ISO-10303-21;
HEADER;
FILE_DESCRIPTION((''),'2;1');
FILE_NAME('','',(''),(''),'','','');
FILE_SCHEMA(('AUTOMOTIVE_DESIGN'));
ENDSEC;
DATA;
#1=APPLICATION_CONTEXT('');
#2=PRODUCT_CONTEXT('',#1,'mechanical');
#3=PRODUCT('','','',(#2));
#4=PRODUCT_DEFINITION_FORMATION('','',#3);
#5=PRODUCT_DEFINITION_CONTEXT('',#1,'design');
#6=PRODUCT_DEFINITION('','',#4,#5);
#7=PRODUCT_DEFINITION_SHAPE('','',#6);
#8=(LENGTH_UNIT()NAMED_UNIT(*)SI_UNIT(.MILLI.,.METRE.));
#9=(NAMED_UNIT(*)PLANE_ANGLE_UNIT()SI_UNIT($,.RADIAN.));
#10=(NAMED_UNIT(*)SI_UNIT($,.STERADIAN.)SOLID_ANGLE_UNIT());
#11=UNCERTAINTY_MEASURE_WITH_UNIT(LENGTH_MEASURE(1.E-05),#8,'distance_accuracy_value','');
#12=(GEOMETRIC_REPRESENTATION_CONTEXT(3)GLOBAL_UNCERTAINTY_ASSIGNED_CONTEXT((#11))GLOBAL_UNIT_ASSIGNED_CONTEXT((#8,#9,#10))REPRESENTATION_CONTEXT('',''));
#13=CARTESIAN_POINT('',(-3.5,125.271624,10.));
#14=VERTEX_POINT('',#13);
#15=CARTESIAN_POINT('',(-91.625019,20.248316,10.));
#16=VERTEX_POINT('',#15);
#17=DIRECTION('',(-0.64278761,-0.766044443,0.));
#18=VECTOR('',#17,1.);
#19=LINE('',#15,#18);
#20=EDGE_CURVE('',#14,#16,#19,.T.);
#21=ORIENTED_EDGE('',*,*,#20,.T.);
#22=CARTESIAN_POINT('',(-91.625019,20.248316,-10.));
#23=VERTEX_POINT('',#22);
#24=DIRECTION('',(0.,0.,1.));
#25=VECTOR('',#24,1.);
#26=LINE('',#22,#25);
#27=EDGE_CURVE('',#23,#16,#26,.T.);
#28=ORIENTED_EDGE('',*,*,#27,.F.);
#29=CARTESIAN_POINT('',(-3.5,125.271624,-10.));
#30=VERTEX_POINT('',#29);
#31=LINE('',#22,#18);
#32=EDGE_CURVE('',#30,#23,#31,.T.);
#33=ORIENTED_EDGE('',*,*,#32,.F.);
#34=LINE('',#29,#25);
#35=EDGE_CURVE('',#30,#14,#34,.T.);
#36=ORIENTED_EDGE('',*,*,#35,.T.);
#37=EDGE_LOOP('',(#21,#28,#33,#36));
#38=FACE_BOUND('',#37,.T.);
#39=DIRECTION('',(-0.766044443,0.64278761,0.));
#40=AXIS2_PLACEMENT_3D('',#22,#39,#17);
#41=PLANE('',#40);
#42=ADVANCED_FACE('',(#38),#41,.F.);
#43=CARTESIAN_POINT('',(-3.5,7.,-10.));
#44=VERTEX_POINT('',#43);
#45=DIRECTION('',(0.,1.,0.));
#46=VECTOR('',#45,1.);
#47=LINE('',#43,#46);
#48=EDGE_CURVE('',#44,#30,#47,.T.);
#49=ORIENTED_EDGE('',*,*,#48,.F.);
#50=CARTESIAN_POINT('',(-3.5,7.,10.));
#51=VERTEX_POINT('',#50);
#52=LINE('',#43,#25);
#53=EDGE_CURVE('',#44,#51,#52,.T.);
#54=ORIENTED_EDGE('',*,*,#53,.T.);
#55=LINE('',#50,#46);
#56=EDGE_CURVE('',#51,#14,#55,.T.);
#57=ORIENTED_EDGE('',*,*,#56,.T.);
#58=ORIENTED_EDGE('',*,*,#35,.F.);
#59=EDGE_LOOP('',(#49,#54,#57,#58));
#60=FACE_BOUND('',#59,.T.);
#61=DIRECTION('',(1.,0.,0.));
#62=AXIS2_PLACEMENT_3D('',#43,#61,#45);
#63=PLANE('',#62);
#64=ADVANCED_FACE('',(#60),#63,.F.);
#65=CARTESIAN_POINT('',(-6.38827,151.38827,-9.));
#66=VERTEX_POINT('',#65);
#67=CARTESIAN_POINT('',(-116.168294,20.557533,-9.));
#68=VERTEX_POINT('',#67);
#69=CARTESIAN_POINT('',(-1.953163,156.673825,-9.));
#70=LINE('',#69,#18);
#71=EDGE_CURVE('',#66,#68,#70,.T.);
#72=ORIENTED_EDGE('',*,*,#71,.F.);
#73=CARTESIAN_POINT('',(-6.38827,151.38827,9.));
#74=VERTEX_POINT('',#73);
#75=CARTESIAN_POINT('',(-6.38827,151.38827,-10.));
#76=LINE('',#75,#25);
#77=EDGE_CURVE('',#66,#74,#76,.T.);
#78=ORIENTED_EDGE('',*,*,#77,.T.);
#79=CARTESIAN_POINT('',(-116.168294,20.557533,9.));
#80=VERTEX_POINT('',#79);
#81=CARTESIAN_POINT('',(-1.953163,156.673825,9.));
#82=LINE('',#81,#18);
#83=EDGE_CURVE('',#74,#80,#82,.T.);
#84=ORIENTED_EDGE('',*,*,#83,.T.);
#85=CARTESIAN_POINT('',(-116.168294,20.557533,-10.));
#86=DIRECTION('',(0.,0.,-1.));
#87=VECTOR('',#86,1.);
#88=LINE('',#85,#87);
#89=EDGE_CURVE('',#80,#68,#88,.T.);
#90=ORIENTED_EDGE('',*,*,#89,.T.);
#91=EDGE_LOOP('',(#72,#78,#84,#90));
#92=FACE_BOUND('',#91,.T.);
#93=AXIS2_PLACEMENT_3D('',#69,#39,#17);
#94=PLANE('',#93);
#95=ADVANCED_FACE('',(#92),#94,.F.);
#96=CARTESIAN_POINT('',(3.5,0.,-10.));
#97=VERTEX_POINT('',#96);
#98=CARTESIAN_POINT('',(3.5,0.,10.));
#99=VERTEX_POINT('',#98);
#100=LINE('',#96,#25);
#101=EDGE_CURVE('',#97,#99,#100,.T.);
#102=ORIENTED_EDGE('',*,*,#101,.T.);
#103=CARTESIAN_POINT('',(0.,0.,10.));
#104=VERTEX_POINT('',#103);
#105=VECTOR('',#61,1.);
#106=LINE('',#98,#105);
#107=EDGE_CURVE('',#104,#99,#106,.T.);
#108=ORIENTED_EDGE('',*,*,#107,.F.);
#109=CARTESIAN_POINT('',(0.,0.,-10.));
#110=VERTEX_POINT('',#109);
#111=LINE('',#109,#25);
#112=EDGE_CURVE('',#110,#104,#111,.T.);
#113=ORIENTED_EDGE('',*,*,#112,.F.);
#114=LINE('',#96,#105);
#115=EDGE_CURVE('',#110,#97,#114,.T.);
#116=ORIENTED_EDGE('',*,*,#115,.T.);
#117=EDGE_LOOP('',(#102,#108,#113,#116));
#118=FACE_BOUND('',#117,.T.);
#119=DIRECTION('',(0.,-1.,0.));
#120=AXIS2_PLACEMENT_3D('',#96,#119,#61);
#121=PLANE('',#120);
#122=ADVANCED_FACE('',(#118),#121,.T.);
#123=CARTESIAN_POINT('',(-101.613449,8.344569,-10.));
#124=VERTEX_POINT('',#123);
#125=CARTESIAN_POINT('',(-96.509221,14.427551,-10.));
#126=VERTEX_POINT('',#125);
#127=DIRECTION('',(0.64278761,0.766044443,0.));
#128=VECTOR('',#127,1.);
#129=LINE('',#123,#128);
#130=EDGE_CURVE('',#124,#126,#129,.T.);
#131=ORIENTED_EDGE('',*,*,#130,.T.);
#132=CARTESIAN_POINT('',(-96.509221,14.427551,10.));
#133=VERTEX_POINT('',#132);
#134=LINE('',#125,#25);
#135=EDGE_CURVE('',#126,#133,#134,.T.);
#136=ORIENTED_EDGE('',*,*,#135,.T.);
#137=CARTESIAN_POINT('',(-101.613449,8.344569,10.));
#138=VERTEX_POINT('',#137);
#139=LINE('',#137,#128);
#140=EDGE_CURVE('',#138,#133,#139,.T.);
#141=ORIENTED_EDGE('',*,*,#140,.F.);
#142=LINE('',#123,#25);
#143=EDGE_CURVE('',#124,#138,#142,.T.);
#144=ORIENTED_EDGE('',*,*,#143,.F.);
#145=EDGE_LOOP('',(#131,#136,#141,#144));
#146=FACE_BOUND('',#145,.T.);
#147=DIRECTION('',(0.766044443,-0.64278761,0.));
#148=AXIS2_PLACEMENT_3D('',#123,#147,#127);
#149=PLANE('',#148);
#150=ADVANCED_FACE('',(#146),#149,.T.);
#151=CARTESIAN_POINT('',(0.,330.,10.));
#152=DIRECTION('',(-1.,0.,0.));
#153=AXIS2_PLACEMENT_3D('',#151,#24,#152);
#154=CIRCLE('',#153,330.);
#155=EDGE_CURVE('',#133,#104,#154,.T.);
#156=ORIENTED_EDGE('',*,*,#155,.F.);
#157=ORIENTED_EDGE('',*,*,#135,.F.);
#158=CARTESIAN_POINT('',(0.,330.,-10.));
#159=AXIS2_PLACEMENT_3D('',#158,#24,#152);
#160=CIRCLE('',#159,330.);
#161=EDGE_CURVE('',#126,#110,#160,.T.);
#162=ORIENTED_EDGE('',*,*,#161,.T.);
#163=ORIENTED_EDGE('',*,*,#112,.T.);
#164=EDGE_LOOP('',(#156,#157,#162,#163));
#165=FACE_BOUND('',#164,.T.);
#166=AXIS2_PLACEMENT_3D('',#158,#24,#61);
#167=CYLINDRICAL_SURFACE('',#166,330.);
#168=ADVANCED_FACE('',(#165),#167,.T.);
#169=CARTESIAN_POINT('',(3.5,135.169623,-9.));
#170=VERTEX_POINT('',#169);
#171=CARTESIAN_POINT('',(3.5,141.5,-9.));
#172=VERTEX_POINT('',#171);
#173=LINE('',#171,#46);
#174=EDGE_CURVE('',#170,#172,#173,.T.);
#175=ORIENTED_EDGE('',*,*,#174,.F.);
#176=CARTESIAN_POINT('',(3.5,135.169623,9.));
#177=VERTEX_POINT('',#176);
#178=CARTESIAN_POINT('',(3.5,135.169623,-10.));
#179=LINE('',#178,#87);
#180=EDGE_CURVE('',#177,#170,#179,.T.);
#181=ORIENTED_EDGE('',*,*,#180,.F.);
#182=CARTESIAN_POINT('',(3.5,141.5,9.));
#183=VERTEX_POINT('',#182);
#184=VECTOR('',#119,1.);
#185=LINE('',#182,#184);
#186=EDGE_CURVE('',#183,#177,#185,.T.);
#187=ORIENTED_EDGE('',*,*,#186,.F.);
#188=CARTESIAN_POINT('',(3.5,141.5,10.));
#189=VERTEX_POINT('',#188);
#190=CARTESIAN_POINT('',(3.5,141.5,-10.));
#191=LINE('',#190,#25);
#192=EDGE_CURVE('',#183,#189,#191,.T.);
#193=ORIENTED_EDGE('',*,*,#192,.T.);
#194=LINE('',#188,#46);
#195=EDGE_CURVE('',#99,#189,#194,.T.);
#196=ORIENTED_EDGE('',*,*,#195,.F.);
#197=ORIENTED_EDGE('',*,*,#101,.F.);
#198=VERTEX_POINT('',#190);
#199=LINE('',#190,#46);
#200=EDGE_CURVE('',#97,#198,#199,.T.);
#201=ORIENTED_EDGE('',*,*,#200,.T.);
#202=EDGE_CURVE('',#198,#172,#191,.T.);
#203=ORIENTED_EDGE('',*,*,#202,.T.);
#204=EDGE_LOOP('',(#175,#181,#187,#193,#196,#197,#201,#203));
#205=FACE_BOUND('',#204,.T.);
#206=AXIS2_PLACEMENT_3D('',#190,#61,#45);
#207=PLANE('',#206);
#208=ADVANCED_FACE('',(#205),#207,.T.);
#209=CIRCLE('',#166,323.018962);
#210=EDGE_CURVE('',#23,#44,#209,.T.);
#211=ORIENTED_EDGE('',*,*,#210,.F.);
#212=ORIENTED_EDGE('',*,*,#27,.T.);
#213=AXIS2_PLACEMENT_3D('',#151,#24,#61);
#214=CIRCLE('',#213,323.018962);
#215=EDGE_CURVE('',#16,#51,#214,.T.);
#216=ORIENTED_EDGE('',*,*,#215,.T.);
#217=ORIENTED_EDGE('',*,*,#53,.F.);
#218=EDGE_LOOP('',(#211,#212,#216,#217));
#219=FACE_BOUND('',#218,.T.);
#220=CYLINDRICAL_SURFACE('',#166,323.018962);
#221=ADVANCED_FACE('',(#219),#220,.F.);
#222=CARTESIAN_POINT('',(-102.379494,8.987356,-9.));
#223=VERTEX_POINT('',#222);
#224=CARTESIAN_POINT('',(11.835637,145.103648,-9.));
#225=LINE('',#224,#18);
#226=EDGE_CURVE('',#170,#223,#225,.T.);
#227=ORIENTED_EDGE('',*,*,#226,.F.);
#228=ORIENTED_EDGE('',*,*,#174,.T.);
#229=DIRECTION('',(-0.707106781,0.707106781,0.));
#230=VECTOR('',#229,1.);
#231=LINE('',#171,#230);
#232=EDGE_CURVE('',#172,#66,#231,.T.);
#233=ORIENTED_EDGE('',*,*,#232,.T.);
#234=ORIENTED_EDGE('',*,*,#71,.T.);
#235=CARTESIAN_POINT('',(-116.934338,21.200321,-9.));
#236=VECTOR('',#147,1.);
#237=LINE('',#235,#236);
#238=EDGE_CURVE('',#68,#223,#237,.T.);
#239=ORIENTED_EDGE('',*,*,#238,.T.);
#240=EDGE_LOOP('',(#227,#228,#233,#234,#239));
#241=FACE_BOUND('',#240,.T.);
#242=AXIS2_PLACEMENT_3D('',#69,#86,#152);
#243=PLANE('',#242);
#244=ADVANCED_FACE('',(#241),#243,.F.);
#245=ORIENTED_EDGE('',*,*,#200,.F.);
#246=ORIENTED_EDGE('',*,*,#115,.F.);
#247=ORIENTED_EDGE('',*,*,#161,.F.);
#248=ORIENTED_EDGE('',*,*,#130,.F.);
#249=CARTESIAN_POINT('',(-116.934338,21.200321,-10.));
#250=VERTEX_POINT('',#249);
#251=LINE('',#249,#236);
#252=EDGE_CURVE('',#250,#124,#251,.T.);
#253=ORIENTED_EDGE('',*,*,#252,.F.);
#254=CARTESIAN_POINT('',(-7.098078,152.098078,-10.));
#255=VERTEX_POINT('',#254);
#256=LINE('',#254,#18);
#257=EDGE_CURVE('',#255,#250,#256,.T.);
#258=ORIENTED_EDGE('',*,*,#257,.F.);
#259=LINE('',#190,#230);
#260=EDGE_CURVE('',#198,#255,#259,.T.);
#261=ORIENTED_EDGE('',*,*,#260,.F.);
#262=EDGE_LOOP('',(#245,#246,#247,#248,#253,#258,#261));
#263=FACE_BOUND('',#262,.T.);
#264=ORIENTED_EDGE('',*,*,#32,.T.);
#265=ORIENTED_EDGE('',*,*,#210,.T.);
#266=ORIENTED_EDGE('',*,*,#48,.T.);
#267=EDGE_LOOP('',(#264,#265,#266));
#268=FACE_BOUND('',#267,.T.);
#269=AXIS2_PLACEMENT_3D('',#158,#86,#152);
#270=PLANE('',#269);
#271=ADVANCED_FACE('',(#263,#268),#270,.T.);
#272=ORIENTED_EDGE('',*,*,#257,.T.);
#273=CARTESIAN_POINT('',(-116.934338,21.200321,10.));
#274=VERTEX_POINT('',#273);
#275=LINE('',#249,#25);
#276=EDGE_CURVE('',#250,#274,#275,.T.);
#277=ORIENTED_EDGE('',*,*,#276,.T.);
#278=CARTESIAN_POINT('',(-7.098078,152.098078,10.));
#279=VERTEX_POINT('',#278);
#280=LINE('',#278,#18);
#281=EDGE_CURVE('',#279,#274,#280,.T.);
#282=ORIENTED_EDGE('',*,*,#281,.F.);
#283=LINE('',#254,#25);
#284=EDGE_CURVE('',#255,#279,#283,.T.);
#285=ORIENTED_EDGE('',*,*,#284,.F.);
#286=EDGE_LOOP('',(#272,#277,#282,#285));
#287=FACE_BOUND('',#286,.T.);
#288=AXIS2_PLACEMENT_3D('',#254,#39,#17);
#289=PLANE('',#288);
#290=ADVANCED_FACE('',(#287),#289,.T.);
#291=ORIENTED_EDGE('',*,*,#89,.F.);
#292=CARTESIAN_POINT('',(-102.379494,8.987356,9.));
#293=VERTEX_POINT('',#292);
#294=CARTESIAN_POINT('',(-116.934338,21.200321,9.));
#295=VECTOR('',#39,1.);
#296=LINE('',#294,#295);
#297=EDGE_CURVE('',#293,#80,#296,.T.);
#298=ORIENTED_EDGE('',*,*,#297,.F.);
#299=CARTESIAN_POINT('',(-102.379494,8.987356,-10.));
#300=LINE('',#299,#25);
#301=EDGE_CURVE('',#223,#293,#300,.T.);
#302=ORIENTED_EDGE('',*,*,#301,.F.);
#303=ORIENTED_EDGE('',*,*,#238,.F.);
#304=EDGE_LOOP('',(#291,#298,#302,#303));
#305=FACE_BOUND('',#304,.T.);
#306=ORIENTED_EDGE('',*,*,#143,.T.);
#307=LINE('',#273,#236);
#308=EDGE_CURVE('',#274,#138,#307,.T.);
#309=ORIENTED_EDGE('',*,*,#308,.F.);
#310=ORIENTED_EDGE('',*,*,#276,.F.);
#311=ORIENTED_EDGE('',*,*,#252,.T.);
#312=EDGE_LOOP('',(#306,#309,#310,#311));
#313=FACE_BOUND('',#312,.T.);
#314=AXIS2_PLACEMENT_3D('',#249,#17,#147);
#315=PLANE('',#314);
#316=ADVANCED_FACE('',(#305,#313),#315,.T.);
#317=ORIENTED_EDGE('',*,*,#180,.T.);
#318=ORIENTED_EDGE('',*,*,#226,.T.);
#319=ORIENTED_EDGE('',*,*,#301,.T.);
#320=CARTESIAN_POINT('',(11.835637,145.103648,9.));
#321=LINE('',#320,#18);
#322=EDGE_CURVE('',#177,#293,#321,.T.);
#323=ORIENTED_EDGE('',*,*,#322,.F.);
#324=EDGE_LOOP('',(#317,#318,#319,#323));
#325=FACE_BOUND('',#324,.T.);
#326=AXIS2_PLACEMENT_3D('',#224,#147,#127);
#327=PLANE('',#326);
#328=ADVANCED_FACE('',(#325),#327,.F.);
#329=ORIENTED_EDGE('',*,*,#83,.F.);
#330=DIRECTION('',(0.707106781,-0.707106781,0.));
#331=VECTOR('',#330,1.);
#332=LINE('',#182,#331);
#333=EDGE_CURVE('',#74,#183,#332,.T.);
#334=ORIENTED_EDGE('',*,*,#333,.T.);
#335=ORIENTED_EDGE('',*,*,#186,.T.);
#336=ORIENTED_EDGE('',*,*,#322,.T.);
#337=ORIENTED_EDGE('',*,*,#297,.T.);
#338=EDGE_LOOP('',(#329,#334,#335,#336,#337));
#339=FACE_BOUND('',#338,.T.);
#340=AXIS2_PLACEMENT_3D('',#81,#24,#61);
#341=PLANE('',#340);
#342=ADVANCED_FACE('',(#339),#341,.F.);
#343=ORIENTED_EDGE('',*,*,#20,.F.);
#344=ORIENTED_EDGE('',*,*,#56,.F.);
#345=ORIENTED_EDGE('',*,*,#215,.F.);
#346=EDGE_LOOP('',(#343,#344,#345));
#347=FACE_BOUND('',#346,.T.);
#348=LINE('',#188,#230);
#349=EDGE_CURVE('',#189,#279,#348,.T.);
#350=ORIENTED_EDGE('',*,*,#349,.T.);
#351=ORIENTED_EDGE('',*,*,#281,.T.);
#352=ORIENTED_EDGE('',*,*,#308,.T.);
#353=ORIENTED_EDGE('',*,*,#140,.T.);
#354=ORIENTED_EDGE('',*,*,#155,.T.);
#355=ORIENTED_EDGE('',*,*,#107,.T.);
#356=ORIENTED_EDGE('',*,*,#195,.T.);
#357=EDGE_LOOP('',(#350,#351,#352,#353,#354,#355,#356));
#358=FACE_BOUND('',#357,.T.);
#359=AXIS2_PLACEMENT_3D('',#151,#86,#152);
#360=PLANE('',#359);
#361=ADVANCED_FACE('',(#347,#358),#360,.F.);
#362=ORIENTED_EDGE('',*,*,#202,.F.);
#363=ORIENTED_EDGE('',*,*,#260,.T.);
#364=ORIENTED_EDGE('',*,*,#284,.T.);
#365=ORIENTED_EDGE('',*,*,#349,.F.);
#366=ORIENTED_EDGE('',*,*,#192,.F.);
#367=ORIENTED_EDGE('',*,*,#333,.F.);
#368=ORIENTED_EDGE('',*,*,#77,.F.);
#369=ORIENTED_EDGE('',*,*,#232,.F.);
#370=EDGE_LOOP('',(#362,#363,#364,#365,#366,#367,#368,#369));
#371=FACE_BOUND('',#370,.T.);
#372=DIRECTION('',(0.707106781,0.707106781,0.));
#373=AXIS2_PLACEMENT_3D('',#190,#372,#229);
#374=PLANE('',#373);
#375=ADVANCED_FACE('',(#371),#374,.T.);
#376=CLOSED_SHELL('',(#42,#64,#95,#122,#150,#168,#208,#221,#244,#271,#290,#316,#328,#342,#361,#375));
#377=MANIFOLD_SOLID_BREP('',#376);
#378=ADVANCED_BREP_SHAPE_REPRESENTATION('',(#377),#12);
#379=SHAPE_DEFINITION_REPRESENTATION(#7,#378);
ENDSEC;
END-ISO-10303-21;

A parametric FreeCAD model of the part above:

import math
import FreeCAD as App
import Part
import Sketcher
from FreeCAD import Vector
Q = App.Units.Quantity

doc = App.newDocument("Part")
body = doc.addObject("PartDesign::Body", "Body")

sketch1 = body.newObject("Sketcher::SketchObject", "Sketch")
sketch1.AttachmentSupport = (doc.getObject("XY_Plane"), [""])
sketch1.MapMode = "FlatFace"
sketch1.addGeometry([
    Part.LineSegment(Vector(-7.1, 152.1, 0), Vector(-116.9, 21.2, 0)),
    Part.LineSegment(Vector(-116.9, 21.2, 0), Vector(-101.6, 8.3, 0)),
    Part.LineSegment(Vector(-101.6, 8.3, 0), Vector(-96.5, 14.4, 0)),
    Part.ArcOfCircle(Part.Circle(Vector(0, 330, 0), Vector(0, 0, 1), 330), math.radians(-107), math.radians(-90)),
    Part.LineSegment(Vector(0, 0, 0), Vector(3.5, 0, 0)),
    Part.LineSegment(Vector(3.5, 0, 0), Vector(3.5, 141.5, 0)),
    Part.LineSegment(Vector(3.5, 141.5, 0), Vector(-7.1, 152.1, 0)),
    Part.LineSegment(Vector(-3.5, 125.3, 0), Vector(-3.5, 7, 0)),
    Part.ArcOfCircle(Part.Circle(Vector(0, 330, 0), Vector(0, 0, 1), 323), math.radians(-106.48), math.radians(-90.62)),
    Part.LineSegment(Vector(-91.6, 20.2, 0), Vector(-3.5, 125.3, 0)),
], False)
sketch1.addConstraint([
    Sketcher.Constraint("Coincident", 0, 2, 1, 1),
    Sketcher.Constraint("Coincident", 1, 2, 2, 1),
    Sketcher.Constraint("Coincident", 2, 2, 3, 1),
    Sketcher.Constraint("Tangent", 3, 2, 4, 1),
    Sketcher.Constraint("Coincident", 4, 2, 5, 1),
    Sketcher.Constraint("Coincident", 5, 2, 6, 1),
    Sketcher.Constraint("Coincident", 6, 2, 0, 1),
    Sketcher.Constraint("Coincident", 7, 2, 8, 2),
    Sketcher.Constraint("Coincident", 8, 1, 9, 1),
    Sketcher.Constraint("Coincident", 9, 2, 7, 1),
    Sketcher.Constraint("Horizontal", 4),
    Sketcher.Constraint("Vertical", 5),
    Sketcher.Constraint("Vertical", 7),
    Sketcher.Constraint("Coincident", 3, 2, -1, 1),
    Sketcher.Constraint("Coincident", 8, 3, 3, 3),
    Sketcher.Constraint("Perpendicular", 0, 1),
    Sketcher.Constraint("Perpendicular", 1, 2),
    Sketcher.Constraint("Parallel", 2, 9),
    Sketcher.Constraint("Radius", 3, Q("330 mm")),
    Sketcher.Constraint("Angle", 0, Q("-130 deg")),
    Sketcher.Constraint("Angle", 6, Q("135 deg")),
    Sketcher.Constraint("Distance", 1, Q("20 mm")),
    Sketcher.Constraint("DistanceX", 4, 1, 4, 2, Q("3.5 mm")),
    Sketcher.Constraint("DistanceY", 5, 1, 5, 2, Q("141.5 mm")),
    Sketcher.Constraint("DistanceY", -1, 1, 7, 2, Q("7 mm")),
    Sketcher.Constraint("DistanceX", 7, 2, 4, 2, Q("7 mm")),
    Sketcher.Constraint("Distance", 2, Q("7.94077 mm")),
    Sketcher.Constraint("DistanceY", 7, 2, 7, 1, Q("118.271624 mm")),
    Sketcher.Constraint("DistanceX", 0, 2, -1, 1, Q("116.934338 mm")),
])
pad1 = body.newObject("PartDesign::Pad", "Pad")
pad1.Profile = sketch1
pad1.Type = "TwoLengths"
pad1.Length = 10
pad1.Length2 = 10

sketch2 = body.newObject("Sketcher::SketchObject", "Sketch001")
sketch2.Placement = App.Placement(Vector(-37.875332, -45.138062, 0), App.Rotation(Vector(-0.766044443, 0.64278761, 0), Vector(0, 0, -1), Vector(-0.64278761, -0.766044443, 0), "ZXY"))
sketch2.addGeometry([
    Part.LineSegment(Vector(84, 9, 0), Vector(84, -9, 0)),
    Part.LineSegment(Vector(84, -9, 0), Vector(102, -9, 0)),
    Part.LineSegment(Vector(102, -9, 0), Vector(102, 9, 0)),
    Part.LineSegment(Vector(102, 9, 0), Vector(84, 9, 0)),
], False)
sketch2.addConstraint([
    Sketcher.Constraint("Coincident", 0, 2, 1, 1),
    Sketcher.Constraint("Coincident", 1, 2, 2, 1),
    Sketcher.Constraint("Coincident", 2, 2, 3, 1),
    Sketcher.Constraint("Coincident", 3, 2, 0, 1),
    Sketcher.Constraint("Vertical", 0),
    Sketcher.Constraint("Horizontal", 1),
    Sketcher.Constraint("Vertical", 2),
    Sketcher.Constraint("Horizontal", 3),
    Sketcher.Constraint("Equal", 3, 0),
    Sketcher.Constraint("DistanceX", 1, 1, 1, 2, Q("18 mm")),
    Sketcher.Constraint("DistanceY", 0, 2, -1, 1, Q("9 mm")),
    Sketcher.Constraint("DistanceX", -1, 1, 0, 2, Q("84.204203 mm")),
])
pocket1 = body.newObject("PartDesign::Pocket", "Pocket")
pocket1.Profile = sketch2
pocket1.Type = "ThroughAll"
pocket1.Midplane = True

doc.recompute()
